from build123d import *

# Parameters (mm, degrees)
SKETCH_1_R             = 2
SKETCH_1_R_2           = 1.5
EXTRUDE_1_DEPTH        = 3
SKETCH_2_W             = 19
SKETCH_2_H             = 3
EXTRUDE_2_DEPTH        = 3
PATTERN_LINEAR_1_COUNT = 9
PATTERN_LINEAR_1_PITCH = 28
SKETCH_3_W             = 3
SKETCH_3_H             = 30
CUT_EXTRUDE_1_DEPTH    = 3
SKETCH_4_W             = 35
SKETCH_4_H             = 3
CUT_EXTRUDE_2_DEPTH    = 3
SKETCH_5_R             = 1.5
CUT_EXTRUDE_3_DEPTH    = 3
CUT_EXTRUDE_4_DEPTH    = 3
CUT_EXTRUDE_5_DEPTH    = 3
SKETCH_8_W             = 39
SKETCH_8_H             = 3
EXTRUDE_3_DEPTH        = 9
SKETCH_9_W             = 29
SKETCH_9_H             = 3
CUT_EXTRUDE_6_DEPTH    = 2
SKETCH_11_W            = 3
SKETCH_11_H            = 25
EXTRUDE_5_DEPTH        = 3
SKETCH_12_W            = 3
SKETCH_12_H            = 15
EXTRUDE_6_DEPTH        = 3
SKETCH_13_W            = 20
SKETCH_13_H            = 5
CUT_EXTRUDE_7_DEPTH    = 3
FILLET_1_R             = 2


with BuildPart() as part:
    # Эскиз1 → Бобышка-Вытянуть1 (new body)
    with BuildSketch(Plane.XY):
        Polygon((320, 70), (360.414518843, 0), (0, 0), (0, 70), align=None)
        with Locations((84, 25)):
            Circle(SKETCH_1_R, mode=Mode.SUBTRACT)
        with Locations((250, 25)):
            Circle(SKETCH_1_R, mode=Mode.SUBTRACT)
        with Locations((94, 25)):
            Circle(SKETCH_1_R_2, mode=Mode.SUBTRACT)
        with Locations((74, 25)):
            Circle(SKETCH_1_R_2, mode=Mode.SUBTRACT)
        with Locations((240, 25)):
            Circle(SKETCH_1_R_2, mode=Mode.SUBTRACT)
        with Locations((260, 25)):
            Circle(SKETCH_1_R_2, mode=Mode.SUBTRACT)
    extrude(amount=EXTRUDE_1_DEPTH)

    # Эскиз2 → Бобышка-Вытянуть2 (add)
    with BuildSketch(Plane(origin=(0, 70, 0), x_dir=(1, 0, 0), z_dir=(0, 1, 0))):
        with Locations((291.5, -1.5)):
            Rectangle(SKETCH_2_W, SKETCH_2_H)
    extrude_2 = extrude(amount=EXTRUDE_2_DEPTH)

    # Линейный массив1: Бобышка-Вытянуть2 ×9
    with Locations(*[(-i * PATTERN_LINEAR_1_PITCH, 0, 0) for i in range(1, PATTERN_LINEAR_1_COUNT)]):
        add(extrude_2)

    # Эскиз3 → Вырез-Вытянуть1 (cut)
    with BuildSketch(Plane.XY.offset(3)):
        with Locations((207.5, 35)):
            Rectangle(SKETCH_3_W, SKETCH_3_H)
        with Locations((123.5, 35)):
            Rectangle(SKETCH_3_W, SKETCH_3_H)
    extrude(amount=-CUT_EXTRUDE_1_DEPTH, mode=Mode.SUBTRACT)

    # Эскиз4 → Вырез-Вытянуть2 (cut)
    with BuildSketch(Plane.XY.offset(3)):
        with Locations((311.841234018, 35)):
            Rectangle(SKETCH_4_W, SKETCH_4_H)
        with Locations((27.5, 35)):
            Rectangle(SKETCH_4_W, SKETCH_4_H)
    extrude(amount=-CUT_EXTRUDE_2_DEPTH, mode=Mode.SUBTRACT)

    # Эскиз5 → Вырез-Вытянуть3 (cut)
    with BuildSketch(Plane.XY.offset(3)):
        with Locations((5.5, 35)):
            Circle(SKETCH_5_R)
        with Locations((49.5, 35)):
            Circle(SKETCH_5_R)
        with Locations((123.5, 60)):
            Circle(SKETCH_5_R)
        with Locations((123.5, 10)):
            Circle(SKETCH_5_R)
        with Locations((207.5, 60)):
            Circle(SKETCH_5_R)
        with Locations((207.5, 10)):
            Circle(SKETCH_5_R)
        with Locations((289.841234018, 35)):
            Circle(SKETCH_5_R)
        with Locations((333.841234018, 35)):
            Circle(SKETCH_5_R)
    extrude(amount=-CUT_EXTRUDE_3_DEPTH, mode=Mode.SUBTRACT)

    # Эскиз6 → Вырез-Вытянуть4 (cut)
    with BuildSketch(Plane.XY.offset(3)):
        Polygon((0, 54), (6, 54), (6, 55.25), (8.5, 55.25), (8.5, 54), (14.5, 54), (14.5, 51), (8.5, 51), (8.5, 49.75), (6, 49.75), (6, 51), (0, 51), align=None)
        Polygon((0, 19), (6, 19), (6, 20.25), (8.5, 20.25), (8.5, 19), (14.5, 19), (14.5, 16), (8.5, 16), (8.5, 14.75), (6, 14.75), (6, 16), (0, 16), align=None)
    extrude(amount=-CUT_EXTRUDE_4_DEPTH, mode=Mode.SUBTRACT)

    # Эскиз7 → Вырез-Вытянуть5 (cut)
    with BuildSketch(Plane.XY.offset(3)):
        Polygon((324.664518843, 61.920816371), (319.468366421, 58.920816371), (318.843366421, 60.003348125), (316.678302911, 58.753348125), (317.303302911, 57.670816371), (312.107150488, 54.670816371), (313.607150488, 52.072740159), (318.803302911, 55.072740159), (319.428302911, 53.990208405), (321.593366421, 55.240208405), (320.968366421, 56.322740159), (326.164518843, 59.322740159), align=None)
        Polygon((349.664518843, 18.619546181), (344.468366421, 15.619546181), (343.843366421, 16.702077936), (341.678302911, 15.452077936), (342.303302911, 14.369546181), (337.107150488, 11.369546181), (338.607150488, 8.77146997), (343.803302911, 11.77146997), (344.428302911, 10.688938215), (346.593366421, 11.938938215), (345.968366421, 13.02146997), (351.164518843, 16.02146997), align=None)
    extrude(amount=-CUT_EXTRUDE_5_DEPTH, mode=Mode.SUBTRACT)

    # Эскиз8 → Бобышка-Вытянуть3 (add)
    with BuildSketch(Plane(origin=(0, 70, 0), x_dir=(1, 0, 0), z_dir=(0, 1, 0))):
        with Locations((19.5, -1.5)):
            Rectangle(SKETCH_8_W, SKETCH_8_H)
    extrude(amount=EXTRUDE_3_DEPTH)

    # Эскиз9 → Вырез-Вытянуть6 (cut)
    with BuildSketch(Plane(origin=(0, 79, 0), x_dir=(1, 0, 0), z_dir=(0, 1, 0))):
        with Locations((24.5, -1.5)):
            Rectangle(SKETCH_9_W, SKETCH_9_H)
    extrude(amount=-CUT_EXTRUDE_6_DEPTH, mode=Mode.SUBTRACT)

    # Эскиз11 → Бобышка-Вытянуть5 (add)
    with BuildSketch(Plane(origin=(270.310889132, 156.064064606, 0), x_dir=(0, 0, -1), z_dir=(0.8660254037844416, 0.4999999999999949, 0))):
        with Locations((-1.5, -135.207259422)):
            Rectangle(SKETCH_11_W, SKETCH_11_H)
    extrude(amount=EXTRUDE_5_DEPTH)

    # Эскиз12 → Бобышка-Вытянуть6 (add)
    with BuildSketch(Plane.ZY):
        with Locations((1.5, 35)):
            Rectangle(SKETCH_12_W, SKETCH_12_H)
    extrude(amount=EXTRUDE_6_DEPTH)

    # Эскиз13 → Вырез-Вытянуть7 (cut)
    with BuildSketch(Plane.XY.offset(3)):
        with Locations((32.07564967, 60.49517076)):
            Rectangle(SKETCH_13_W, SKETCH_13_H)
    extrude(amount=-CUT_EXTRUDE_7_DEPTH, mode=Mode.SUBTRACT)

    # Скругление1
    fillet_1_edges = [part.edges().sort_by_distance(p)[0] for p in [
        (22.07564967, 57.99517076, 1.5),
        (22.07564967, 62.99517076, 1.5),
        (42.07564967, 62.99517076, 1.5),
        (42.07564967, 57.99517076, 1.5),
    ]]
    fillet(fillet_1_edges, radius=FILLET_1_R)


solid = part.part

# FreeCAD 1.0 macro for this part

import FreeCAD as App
import Part
import Sketcher
Q = App.Units.Quantity


def edges_at(feature, points):
    """Names of the edges that pass closest to the given points."""
    edges = feature.Shape.Edges
    near = lambda p: min(range(len(edges)), key=lambda i: edges[i].distToShape(Part.Vertex(*p))[0])
    return sorted({f"Edge{near(p) + 1}" for p in points})


def add_polygon(sketch, points):
    """Adds a closed chain of lines whose ends are joined by coincident constraints."""
    first, n = sketch.GeometryCount, len(points)
    for a, b in zip(points, points[1:] + points[:1]):
        sketch.addGeometry(Part.LineSegment(App.Vector(*a, 0), App.Vector(*b, 0)), False)
    for i in range(n):
        sketch.addConstraint(Sketcher.Constraint("Coincident", first + i, 2, first + (i + 1) % n, 1))

doc = App.newDocument("Part")
body = doc.addObject("PartDesign::Body", "Body")

sketch1 = body.newObject("Sketcher::SketchObject", "Sketch")
sketch1.AttachmentSupport = (doc.getObject("XY_Plane"), [""])
sketch1.MapMode = "FlatFace"
add_polygon(sketch1, [(360.4, 0), (320, 70), (0, 70), (0, 0)])
sketch1.addGeometry(Part.Circle(App.Vector(260, 25, 0), App.Vector(0, 0, 1), 1.5), False)
sketch1.addGeometry(Part.Circle(App.Vector(250, 25, 0), App.Vector(0, 0, 1), 2), False)
sketch1.addGeometry(Part.Circle(App.Vector(240, 25, 0), App.Vector(0, 0, 1), 1.5), False)
sketch1.addGeometry(Part.Circle(App.Vector(94, 25, 0), App.Vector(0, 0, 1), 1.5), False)
sketch1.addGeometry(Part.Circle(App.Vector(84, 25, 0), App.Vector(0, 0, 1), 2), False)
sketch1.addGeometry(Part.Circle(App.Vector(74, 25, 0), App.Vector(0, 0, 1), 1.5), False)
sketch1.addConstraint([
    Sketcher.Constraint("Horizontal", 1),
    Sketcher.Constraint("Vertical", 2),
    Sketcher.Constraint("Horizontal", 3),
    Sketcher.Constraint("Coincident", 2, 2, -1, 1),
    Sketcher.Constraint("Equal", 4, 6),
    Sketcher.Constraint("Equal", 6, 7),
    Sketcher.Constraint("Equal", 5, 8),
    Sketcher.Constraint("Equal", 7, 9),
    Sketcher.Constraint("Horizontal", 4, 3, 5, 3),
    Sketcher.Constraint("Horizontal", 5, 3, 6, 3),
    Sketcher.Constraint("Horizontal", 6, 3, 7, 3),
    Sketcher.Constraint("Horizontal", 7, 3, 8, 3),
    Sketcher.Constraint("Horizontal", 8, 3, 9, 3),
    Sketcher.Constraint("Diameter", 4, Q("3 mm")),
    Sketcher.Constraint("Diameter", 5, Q("4 mm")),
    Sketcher.Constraint("DistanceX", 1, 2, 1, 1, Q("320 mm")),
    Sketcher.Constraint("DistanceY", 2, 2, 2, 1, Q("70 mm")),
    Sketcher.Constraint("Angle", 0, Q("120 deg")),
    Sketcher.Constraint("DistanceX", -1, 1, 4, 3, Q("260 mm")),
    Sketcher.Constraint("DistanceY", -1, 1, 4, 3, Q("25 mm")),
    Sketcher.Constraint("DistanceX", -1, 1, 5, 3, Q("250 mm")),
    Sketcher.Constraint("DistanceX", -1, 1, 6, 3, Q("240 mm")),
    Sketcher.Constraint("DistanceX", -1, 1, 7, 3, Q("94 mm")),
    Sketcher.Constraint("DistanceX", -1, 1, 8, 3, Q("84 mm")),
    Sketcher.Constraint("DistanceX", -1, 1, 9, 3, Q("74 mm")),
])
pad1 = body.newObject("PartDesign::Pad", "Pad")
pad1.Profile = sketch1
pad1.Length = 3

sketch2 = body.newObject("Sketcher::SketchObject", "Sketch001")
sketch2.AttachmentSupport = (doc.getObject("XZ_Plane"), [""])
sketch2.MapMode = "FlatFace"
sketch2.AttachmentOffset = App.Placement(App.Vector(0, 0, -70), App.Rotation())
add_polygon(sketch2, [(282, 0), (282, 3), (301, 3), (301, 0)])
sketch2.addConstraint([
    Sketcher.Constraint("Vertical", 0),
    Sketcher.Constraint("Horizontal", 1),
    Sketcher.Constraint("Vertical", 2),
    Sketcher.Constraint("Horizontal", 3),
    Sketcher.Constraint("PointOnObject", 2, 2, -1),
    Sketcher.Constraint("DistanceX", 1, 1, 1, 2, Q("19 mm")),
    Sketcher.Constraint("DistanceY", 0, 1, 0, 2, Q("3 mm")),
    Sketcher.Constraint("DistanceX", -1, 1, 0, 2, Q("282 mm")),
])
pad2 = body.newObject("PartDesign::Pad", "Pad001")
pad2.Profile = sketch2
pad2.Length = 3
pad2.Reversed = True
doc.recompute()

linearpattern = body.newObject("PartDesign::LinearPattern", "LinearPattern")
linearpattern.Originals = [pad2]
linearpattern.Direction = (doc.getObject("X_Axis"), [""])
linearpattern.Mode = "offset"
linearpattern.Offset = 28
linearpattern.Occurrences = 9
linearpattern.Reversed = True
body.Tip = linearpattern

sketch3 = body.newObject("Sketcher::SketchObject", "Sketch002")
sketch3.AttachmentSupport = (doc.getObject("XY_Plane"), [""])
sketch3.MapMode = "FlatFace"
sketch3.AttachmentOffset = App.Placement(App.Vector(0, 0, 3), App.Rotation())
add_polygon(sketch3, [(206, 50), (206, 20), (209, 20), (209, 50)])
add_polygon(sketch3, [(122, 50), (122, 20), (125, 20), (125, 50)])
sketch3.addConstraint([
    Sketcher.Constraint("Vertical", 0),
    Sketcher.Constraint("Horizontal", 1),
    Sketcher.Constraint("Vertical", 2),
    Sketcher.Constraint("Horizontal", 3),
    Sketcher.Constraint("Vertical", 4),
    Sketcher.Constraint("Horizontal", 5),
    Sketcher.Constraint("Vertical", 6),
    Sketcher.Constraint("Horizontal", 7),
    Sketcher.Constraint("Horizontal", 1, 2, 4, 2),
    Sketcher.Constraint("Horizontal", 3, 2, 6, 2),
    Sketcher.Constraint("Equal", 3, 5),
    Sketcher.Constraint("DistanceX", 1, 1, 1, 2, Q("3 mm")),
    Sketcher.Constraint("DistanceY", 0, 2, 0, 1, Q("30 mm")),
    Sketcher.Constraint("DistanceX", -1, 1, 0, 2, Q("206 mm")),
    Sketcher.Constraint("DistanceY", -1, 1, 0, 2, Q("20 mm")),
    Sketcher.Constraint("DistanceX", -1, 1, 4, 2, Q("122 mm")),
])
pocket1 = body.newObject("PartDesign::Pocket", "Pocket")
pocket1.Profile = sketch3
pocket1.Length = 3

sketch4 = body.newObject("Sketcher::SketchObject", "Sketch003")
sketch4.AttachmentSupport = (doc.getObject("XY_Plane"), [""])
sketch4.MapMode = "FlatFace"
sketch4.AttachmentOffset = App.Placement(App.Vector(0, 0, 3), App.Rotation())
add_polygon(sketch4, [(294.3, 36.5), (294.3, 33.5), (329.3, 33.5), (329.3, 36.5)])
add_polygon(sketch4, [(10, 36.5), (10, 33.5), (45, 33.5), (45, 36.5)])
sketch4.addConstraint([
    Sketcher.Constraint("Vertical", 0),
    Sketcher.Constraint("Horizontal", 1),
    Sketcher.Constraint("Vertical", 2),
    Sketcher.Constraint("Horizontal", 3),
    Sketcher.Constraint("Vertical", 4),
    Sketcher.Constraint("Horizontal", 5),
    Sketcher.Constraint("Vertical", 6),
    Sketcher.Constraint("Horizontal", 7),
    Sketcher.Constraint("Horizontal", 1, 2, 4, 2),
    Sketcher.Constraint("Horizontal", 3, 2, 6, 2),
    Sketcher.Constraint("Equal", 3, 5),
    Sketcher.Constraint("DistanceX", 1, 1, 1, 2, Q("35 mm")),
    Sketcher.Constraint("DistanceY", 0, 2, 0, 1, Q("3 mm")),
    Sketcher.Constraint("DistanceX", -1, 1, 4, 2, Q("10 mm")),
    Sketcher.Constraint("DistanceY", -1, 1, 0, 2, Q("33.5 mm")),
    Sketcher.Constraint("DistanceX", -1, 1, 0, 2, Q("294.341234 mm")),
])
pocket2 = body.newObject("PartDesign::Pocket", "Pocket001")
pocket2.Profile = sketch4
pocket2.Length = 3

sketch5 = body.newObject("Sketcher::SketchObject", "Sketch004")
sketch5.AttachmentSupport = (doc.getObject("XY_Plane"), [""])
sketch5.MapMode = "FlatFace"
sketch5.AttachmentOffset = App.Placement(App.Vector(0, 0, 3), App.Rotation())
sketch5.addGeometry([
    Part.Circle(App.Vector(5.5, 35, 0), App.Vector(0, 0, 1), 1.5),
    Part.Circle(App.Vector(49.5, 35, 0), App.Vector(0, 0, 1), 1.5),
    Part.Circle(App.Vector(123.5, 60, 0), App.Vector(0, 0, 1), 1.5),
    Part.Circle(App.Vector(123.5, 10, 0), App.Vector(0, 0, 1), 1.5),
    Part.Circle(App.Vector(207.5, 60, 0), App.Vector(0, 0, 1), 1.5),
    Part.Circle(App.Vector(207.5, 10, 0), App.Vector(0, 0, 1), 1.5),
    Part.Circle(App.Vector(289.8, 35, 0), App.Vector(0, 0, 1), 1.5),
    Part.Circle(App.Vector(333.8, 35, 0), App.Vector(0, 0, 1), 1.5),
], False)
sketch5.addConstraint([
    Sketcher.Constraint("Equal", 0, 1),
    Sketcher.Constraint("Equal", 1, 2),
    Sketcher.Constraint("Equal", 2, 3),
    Sketcher.Constraint("Equal", 3, 4),
    Sketcher.Constraint("Equal", 4, 5),
    Sketcher.Constraint("Equal", 5, 6),
    Sketcher.Constraint("Equal", 6, 7),
    Sketcher.Constraint("Horizontal", 0, 3, 1, 3),
    Sketcher.Constraint("Horizontal", 2, 3, 4, 3),
    Sketcher.Constraint("Horizontal", 3, 3, 5, 3),
    Sketcher.Constraint("Horizontal", 1, 3, 6, 3),
    Sketcher.Constraint("Horizontal", 6, 3, 7, 3),
    Sketcher.Constraint("Vertical", 2, 3, 3, 3),
    Sketcher.Constraint("Vertical", 4, 3, 5, 3),
    Sketcher.Constraint("Diameter", 0, Q("3 mm")),
    Sketcher.Constraint("DistanceY", -1, 1, 0, 3, Q("35 mm")),
    Sketcher.Constraint("DistanceY", -1, 1, 2, 3, Q("60 mm")),
    Sketcher.Constraint("DistanceY", -1, 1, 3, 3, Q("10 mm")),
    Sketcher.Constraint("DistanceX", 0, 3, 1, 3, Q("44 mm")),
    Sketcher.Constraint("DistanceX", 1, 3, 2, 3, Q("74 mm")),
    Sketcher.Constraint("DistanceX", 2, 3, 4, 3, Q("84 mm")),
    Sketcher.Constraint("DistanceX", 6, 3, 7, 3, Q("44 mm")),
    Sketcher.Constraint("DistanceX", -1, 1, 0, 3, Q("5.5 mm")),
    Sketcher.Constraint("DistanceX", -1, 1, 6, 3, Q("289.841234 mm")),
])
pocket3 = body.newObject("PartDesign::Pocket", "Pocket002")
pocket3.Profile = sketch5
pocket3.Length = 3

sketch6 = body.newObject("Sketcher::SketchObject", "Sketch005")
sketch6.AttachmentSupport = (doc.getObject("XY_Plane"), [""])
sketch6.MapMode = "FlatFace"
sketch6.AttachmentOffset = App.Placement(App.Vector(0, 0, 3), App.Rotation())
add_polygon(sketch6, [(6, 54), (0, 54), (0, 51), (6, 51), (6, 49.8), (8.5, 49.8), (8.5, 51), (14.5, 51), (14.5, 54), (8.5, 54), (8.5, 55.2), (6, 55.2)])
add_polygon(sketch6, [(6, 19), (0, 19), (0, 16), (6, 16), (6, 14.8), (8.5, 14.8), (8.5, 16), (14.5, 16), (14.5, 19), (8.5, 19), (8.5, 20.2), (6, 20.2)])
sketch6.addConstraint([
    Sketcher.Constraint("Horizontal", 0),
    Sketcher.Constraint("Vertical", 1),
    Sketcher.Constraint("Horizontal", 2),
    Sketcher.Constraint("Vertical", 3),
    Sketcher.Constraint("Horizontal", 4),
    Sketcher.Constraint("Vertical", 5),
    Sketcher.Constraint("Horizontal", 6),
    Sketcher.Constraint("Vertical", 7),
    Sketcher.Constraint("Horizontal", 8),
    Sketcher.Constraint("Vertical", 9),
    Sketcher.Constraint("Horizontal", 10),
    Sketcher.Constraint("Vertical", 11),
    Sketcher.Constraint("Horizontal", 12),
    Sketcher.Constraint("Vertical", 13),
    Sketcher.Constraint("Horizontal", 14),
    Sketcher.Constraint("Vertical", 15),
    Sketcher.Constraint("Horizontal", 16),
    Sketcher.Constraint("Vertical", 17),
    Sketcher.Constraint("Horizontal", 18),
    Sketcher.Constraint("Vertical", 19),
    Sketcher.Constraint("Horizontal", 20),
    Sketcher.Constraint("Vertical", 21),
    Sketcher.Constraint("Horizontal", 22),
    Sketcher.Constraint("Vertical", 23),
    Sketcher.Constraint("PointOnObject", 0, 2, -2),
    Sketcher.Constraint("PointOnObject", 12, 2, -2),
    Sketcher.Constraint("Horizontal", 2, 2, 5, 2),
    Sketcher.Constraint("Horizontal", 0, 2, 7, 2),
    Sketcher.Constraint("Horizontal", 14, 2, 17, 2),
    Sketcher.Constraint("Horizontal", 12, 2, 19, 2),
    Sketcher.Constraint("Vertical", 5, 2, 8, 2),
    Sketcher.Constraint("Vertical", 3, 2, 10, 2),
    Sketcher.Constraint("Vertical", 11, 2, 14, 2),
    Sketcher.Constraint("Vertical", 9, 2, 16, 2),
    Sketcher.Constraint("Vertical", 7, 2, 18, 2),
    Sketcher.Constraint("Vertical", 17, 2, 20, 2),
    Sketcher.Constraint("Vertical", 15, 2, 22, 2),
    Sketcher.Constraint("Equal", 2, 6),
    Sketcher.Constraint("Equal", 5, 9),
    Sketcher.Constraint("Equal", 7, 13),
    Sketcher.Constraint("Equal", 11, 15),
    Sketcher.Constraint("Equal", 17, 21),
    Sketcher.Constraint("DistanceX", 0, 2, 0, 1, Q("6 mm")),
    Sketcher.Constraint("DistanceY", 1, 2, 1, 1, Q("3 mm")),
    Sketcher.Constraint("DistanceX", 4, 1, 4, 2, Q("2.5 mm")),
    Sketcher.Constraint("DistanceY", -1, 1, 0, 2, Q("54 mm")),
    Sketcher.Constraint("DistanceY", -1, 1, 12, 2, Q("19 mm")),
    Sketcher.Constraint("DistanceY", 3, 2, 3, 1, Q("1.25 mm")),
])
pocket4 = body.newObject("PartDesign::Pocket", "Pocket003")
pocket4.Profile = sketch6
pocket4.Length = 3

sketch7 = body.newObject("Sketcher::SketchObject", "Sketch006")
sketch7.AttachmentSupport = (doc.getObject("XY_Plane"), [""])
sketch7.MapMode = "FlatFace"
sketch7.AttachmentOffset = App.Placement(App.Vector(0, 0, 3), App.Rotation())
add_polygon(sketch7, [(324.7, 61.9), (319.5, 58.9), (318.8, 60), (316.7, 58.8), (317.3, 57.7), (312.1, 54.7), (313.6, 52.1), (318.8, 55.1), (319.4, 54), (321.6, 55.2), (321, 56.3), (326.2, 59.3)])
add_polygon(sketch7, [(349.7, 18.6), (344.5, 15.6), (343.8, 16.7), (341.7, 15.5), (342.3, 14.4), (337.1, 11.4), (338.6, 8.8), (343.8, 11.8), (344.4, 10.7), (346.6, 11.9), (346, 13), (351.2, 16)])
sketch7.addConstraint([
    Sketcher.Constraint("Perpendicular", 0, 1),
    Sketcher.Constraint("Perpendicular", 1, 2),
    Sketcher.Constraint("Perpendicular", 2, 3),
    Sketcher.Constraint("Perpendicular", 3, 4),
    Sketcher.Constraint("Perpendicular", 4, 5),
    Sketcher.Constraint("Perpendicular", 5, 6),
    Sketcher.Constraint("Perpendicular", 6, 7),
    Sketcher.Constraint("Perpendicular", 7, 8),
    Sketcher.Constraint("Perpendicular", 8, 9),
    Sketcher.Constraint("Perpendicular", 9, 10),
    Sketcher.Constraint("Perpendicular", 10, 11),
    Sketcher.Constraint("Perpendicular", 11, 12),
    Sketcher.Constraint("Perpendicular", 12, 13),
    Sketcher.Constraint("Perpendicular", 13, 14),
    Sketcher.Constraint("Perpendicular", 14, 15),
    Sketcher.Constraint("Perpendicular", 15, 16),
    Sketcher.Constraint("Perpendicular", 16, 17),
    Sketcher.Constraint("Perpendicular", 17, 18),
    Sketcher.Constraint("Perpendicular", 18, 19),
    Sketcher.Constraint("Perpendicular", 19, 20),
    Sketcher.Constraint("Perpendicular", 20, 21),
    Sketcher.Constraint("Perpendicular", 21, 22),
    Sketcher.Constraint("Perpendicular", 22, 23),
    Sketcher.Constraint("Equal", 1, 3),
    Sketcher.Constraint("Equal", 0, 4),
    Sketcher.Constraint("Equal", 4, 6),
    Sketcher.Constraint("Equal", 3, 7),
    Sketcher.Constraint("Equal", 2, 8),
    Sketcher.Constraint("Equal", 7, 9),
    Sketcher.Constraint("Equal", 10, 12),
    Sketcher.Constraint("Equal", 9, 13),
    Sketcher.Constraint("Equal", 8, 14),
    Sketcher.Constraint("Equal", 13, 15),
    Sketcher.Constraint("Equal", 12, 16),
    Sketcher.Constraint("Equal", 11, 17),
    Sketcher.Constraint("Equal", 16, 18),
    Sketcher.Constraint("Equal", 15, 19),
    Sketcher.Constraint("Equal", 14, 20),
    Sketcher.Constraint("Equal", 19, 21),
    Sketcher.Constraint("Angle", 0, Q("-150 deg")),
    Sketcher.Constraint("Distance", 0, Q("6 mm")),
    Sketcher.Constraint("Distance", 5, Q("3 mm")),
    Sketcher.Constraint("Distance", 2, Q("2.5 mm")),
    Sketcher.Constraint("DistanceX", 9, 2, 12, 2, Q("23.5 mm")),
    Sketcher.Constraint("Distance", 1, Q("1.25 mm")),
    Sketcher.Constraint("DistanceY", -1, 1, 1, 2, Q("60.003348 mm")),
    Sketcher.Constraint("DistanceX", -1, 1, 4, 2, Q("312.10715 mm")),
    Sketcher.Constraint("DistanceY", -1, 1, 17, 2, Q("8.77147 mm")),
])
pocket5 = body.newObject("PartDesign::Pocket", "Pocket004")
pocket5.Profile = sketch7
pocket5.Length = 3

sketch8 = body.newObject("Sketcher::SketchObject", "Sketch007")
sketch8.AttachmentSupport = (doc.getObject("XZ_Plane"), [""])
sketch8.MapMode = "FlatFace"
sketch8.AttachmentOffset = App.Placement(App.Vector(0, 0, -70), App.Rotation())
add_polygon(sketch8, [(0, 0), (0, 3), (39, 3), (39, 0)])
sketch8.addConstraint([
    Sketcher.Constraint("Vertical", 0),
    Sketcher.Constraint("Horizontal", 1),
    Sketcher.Constraint("Vertical", 2),
    Sketcher.Constraint("Horizontal", 3),
    Sketcher.Constraint("Coincident", 3, 2, -1, 1),
    Sketcher.Constraint("DistanceX", 1, 1, 1, 2, Q("39 mm")),
    Sketcher.Constraint("DistanceY", 0, 1, 0, 2, Q("3 mm")),
])
pad3 = body.newObject("PartDesign::Pad", "Pad002")
pad3.Profile = sketch8
pad3.Length = 9
pad3.Reversed = True

sketch9 = body.newObject("Sketcher::SketchObject", "Sketch008")
sketch9.AttachmentSupport = (doc.getObject("XZ_Plane"), [""])
sketch9.MapMode = "FlatFace"
sketch9.AttachmentOffset = App.Placement(App.Vector(0, 0, -79), App.Rotation())
add_polygon(sketch9, [(10, 0), (10, 3), (39, 3), (39, 0)])
sketch9.addConstraint([
    Sketcher.Constraint("Vertical", 0),
    Sketcher.Constraint("Horizontal", 1),
    Sketcher.Constraint("Vertical", 2),
    Sketcher.Constraint("Horizontal", 3),
    Sketcher.Constraint("PointOnObject", 2, 2, -1),
    Sketcher.Constraint("DistanceX", 1, 1, 1, 2, Q("29 mm")),
    Sketcher.Constraint("DistanceY", 0, 1, 0, 2, Q("3 mm")),
    Sketcher.Constraint("DistanceX", -1, 1, 0, 2, Q("10 mm")),
])
pocket6 = body.newObject("PartDesign::Pocket", "Pocket005")
pocket6.Profile = sketch9
pocket6.Length = 2
pocket6.Reversed = True

sketch10 = body.newObject("Sketcher::SketchObject", "Sketch009")
sketch10.Placement = App.Placement(App.Vector(270.310889, 156.064065, 0), App.Rotation(App.Vector(0, 0, -1), App.Vector(-0.5, 0.866025404, 0), App.Vector(0.866025404, 0.5, 0), "ZXY"))
add_polygon(sketch10, [(-3, -122.7), (-3, -147.7), (0, -147.7), (0, -122.7)])
sketch10.addConstraint([
    Sketcher.Constraint("Vertical", 0),
    Sketcher.Constraint("Horizontal", 1),
    Sketcher.Constraint("Vertical", 2),
    Sketcher.Constraint("Horizontal", 3),
    Sketcher.Constraint("PointOnObject", 1, 2, -2),
    Sketcher.Constraint("DistanceX", 1, 1, 1, 2, Q("3 mm")),
    Sketcher.Constraint("DistanceY", 0, 2, 0, 1, Q("25 mm")),
    Sketcher.Constraint("DistanceY", 0, 2, -1, 1, Q("147.707259 mm")),
])
pad4 = body.newObject("PartDesign::Pad", "Pad003")
pad4.Profile = sketch10
pad4.Length = 3

sketch11 = body.newObject("Sketcher::SketchObject", "Sketch010")
sketch11.AttachmentSupport = (doc.getObject("YZ_Plane"), [""])
sketch11.MapMode = "FlatFace"
add_polygon(sketch11, [(42.5, 0), (27.5, 0), (27.5, 3), (42.5, 3)])
sketch11.addConstraint([
    Sketcher.Constraint("Horizontal", 0),
    Sketcher.Constraint("Vertical", 1),
    Sketcher.Constraint("Horizontal", 2),
    Sketcher.Constraint("Vertical", 3),
    Sketcher.Constraint("PointOnObject", 0, 2, -1),
    Sketcher.Constraint("DistanceX", 0, 2, 0, 1, Q("15 mm")),
    Sketcher.Constraint("DistanceY", 1, 1, 1, 2, Q("3 mm")),
    Sketcher.Constraint("DistanceX", -1, 1, 0, 2, Q("27.5 mm")),
])
pad5 = body.newObject("PartDesign::Pad", "Pad004")
pad5.Profile = sketch11
pad5.Length = 3
pad5.Reversed = True

sketch12 = body.newObject("Sketcher::SketchObject", "Sketch011")
sketch12.AttachmentSupport = (doc.getObject("XY_Plane"), [""])
sketch12.MapMode = "FlatFace"
sketch12.AttachmentOffset = App.Placement(App.Vector(0, 0, 3), App.Rotation())
add_polygon(sketch12, [(22, 63), (22, 58), (42, 58), (42, 63)])
sketch12.addConstraint([
    Sketcher.Constraint("Vertical", 0),
    Sketcher.Constraint("Horizontal", 1),
    Sketcher.Constraint("Vertical", 2),
    Sketcher.Constraint("Horizontal", 3),
    Sketcher.Constraint("DistanceX", 1, 1, 1, 2, Q("20 mm")),
    Sketcher.Constraint("DistanceY", 0, 2, 0, 1, Q("5 mm")),
    Sketcher.Constraint("DistanceX", -1, 1, 0, 2, Q("22.07565 mm")),
    Sketcher.Constraint("DistanceY", -1, 1, 0, 2, Q("57.995171 mm")),
])
pocket7 = body.newObject("PartDesign::Pocket", "Pocket006")
pocket7.Profile = sketch12
pocket7.Length = 3
doc.recompute()

fillet = body.newObject("PartDesign::Fillet", "Fillet")
fillet.Base = (pocket7, edges_at(pocket7, [
    (22.076, 57.995, 1.5),
    (22.076, 62.995, 1.5),
    (42.076, 62.995, 1.5),
    (42.076, 57.995, 1.5),
]))
fillet.Radius = 2

doc.recompute()
